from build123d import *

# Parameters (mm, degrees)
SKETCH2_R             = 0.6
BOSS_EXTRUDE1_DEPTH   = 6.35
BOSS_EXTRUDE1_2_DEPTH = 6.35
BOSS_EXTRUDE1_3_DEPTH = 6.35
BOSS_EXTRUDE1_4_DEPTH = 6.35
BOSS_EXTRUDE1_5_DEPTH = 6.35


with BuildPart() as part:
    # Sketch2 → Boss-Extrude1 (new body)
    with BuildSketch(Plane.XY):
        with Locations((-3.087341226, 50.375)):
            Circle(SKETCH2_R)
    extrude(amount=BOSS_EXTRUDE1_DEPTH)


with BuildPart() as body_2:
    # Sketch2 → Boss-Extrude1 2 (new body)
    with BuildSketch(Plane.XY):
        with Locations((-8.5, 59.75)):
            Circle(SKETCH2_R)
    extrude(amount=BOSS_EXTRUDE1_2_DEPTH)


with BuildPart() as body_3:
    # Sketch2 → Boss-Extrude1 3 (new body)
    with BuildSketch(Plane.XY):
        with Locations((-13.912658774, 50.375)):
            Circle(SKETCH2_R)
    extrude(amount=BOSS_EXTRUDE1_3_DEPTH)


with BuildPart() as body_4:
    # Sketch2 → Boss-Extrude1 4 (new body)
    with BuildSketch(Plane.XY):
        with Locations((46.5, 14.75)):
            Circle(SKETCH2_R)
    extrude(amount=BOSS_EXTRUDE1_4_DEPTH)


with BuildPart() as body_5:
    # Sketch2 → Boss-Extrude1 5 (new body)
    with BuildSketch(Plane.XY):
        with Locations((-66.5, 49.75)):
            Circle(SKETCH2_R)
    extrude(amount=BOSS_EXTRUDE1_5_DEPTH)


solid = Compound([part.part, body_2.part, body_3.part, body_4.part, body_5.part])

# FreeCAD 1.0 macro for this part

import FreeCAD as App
import Part
import Sketcher
from FreeCAD import Vector
Q = App.Units.Quantity

doc = App.newDocument("Part")
params = doc.addObject("Spreadsheet::Sheet", "Params")
for row, (alias, value) in enumerate([
    ("sketch1_diameter", "1.2 mm"),
    ("pad1_length", "6.35 mm"),
    ("sketch2_diameter", "1.2 mm"),
    ("pad2_length", "6.35 mm"),
    ("sketch3_diameter", "1.2 mm"),
    ("pad3_length", "6.35 mm"),
    ("sketch4_diameter", "1.2 mm"),
    ("pad4_length", "6.35 mm"),
    ("sketch5_diameter", "1.2 mm"),
    ("pad5_length", "6.35 mm"),
], start=1):
    params.set(f"A{row}", alias)
    params.set(f"B{row}", "=" + value)
    params.setAlias(f"B{row}", alias)

body = doc.addObject("PartDesign::Body", "Body")

sketch1 = body.newObject("Sketcher::SketchObject", "Sketch")
sketch1.AttachmentSupport = (doc.getObject("XY_Plane"), [""])
sketch1.MapMode = "FlatFace"
sketch1.addGeometry(Part.Circle(Vector(-3.1, 50.4, 0), Vector(0, 0, 1), 0.6), False)
sketch1.addConstraint(Sketcher.Constraint("Diameter", 0, Q("1.2 mm")))
sketch1.addConstraint(Sketcher.Constraint("DistanceY", -1, 1, 0, 3, Q("50.375 mm")))
sketch1.addConstraint(Sketcher.Constraint("DistanceX", 0, 3, -1, 1, Q("3.087341 mm")))
sketch1.setExpression("Constraints[0]", "Params.sketch1_diameter")
pad1 = body.newObject("PartDesign::Pad", "Pad")
pad1.Profile = sketch1
pad1.setExpression("Length", "Params.pad1_length")
body2 = doc.addObject("PartDesign::Body", "Body001")

sketch2 = body2.newObject("Sketcher::SketchObject", "Sketch001")
sketch2.AttachmentSupport = (doc.getObject("XY_Plane001"), [""])
sketch2.MapMode = "FlatFace"
sketch2.addGeometry(Part.Circle(Vector(-8.5, 59.8, 0), Vector(0, 0, 1), 0.6), False)
sketch2.addConstraint(Sketcher.Constraint("Diameter", 0, Q("1.2 mm")))
sketch2.addConstraint(Sketcher.Constraint("DistanceX", 0, 3, -1, 1, Q("8.5 mm")))
sketch2.addConstraint(Sketcher.Constraint("DistanceY", -1, 1, 0, 3, Q("59.75 mm")))
sketch2.setExpression("Constraints[0]", "Params.sketch2_diameter")
pad2 = body2.newObject("PartDesign::Pad", "Pad001")
pad2.Profile = sketch2
pad2.setExpression("Length", "Params.pad2_length")
body3 = doc.addObject("PartDesign::Body", "Body002")

sketch3 = body3.newObject("Sketcher::SketchObject", "Sketch002")
sketch3.AttachmentSupport = (doc.getObject("XY_Plane002"), [""])
sketch3.MapMode = "FlatFace"
sketch3.addGeometry(Part.Circle(Vector(-13.9, 50.4, 0), Vector(0, 0, 1), 0.6), False)
sketch3.addConstraint(Sketcher.Constraint("Diameter", 0, Q("1.2 mm")))
sketch3.addConstraint(Sketcher.Constraint("DistanceY", -1, 1, 0, 3, Q("50.375 mm")))
sketch3.addConstraint(Sketcher.Constraint("DistanceX", 0, 3, -1, 1, Q("13.912659 mm")))
sketch3.setExpression("Constraints[0]", "Params.sketch3_diameter")
pad3 = body3.newObject("PartDesign::Pad", "Pad002")
pad3.Profile = sketch3
pad3.setExpression("Length", "Params.pad3_length")
body4 = doc.addObject("PartDesign::Body", "Body003")

sketch4 = body4.newObject("Sketcher::SketchObject", "Sketch003")
sketch4.AttachmentSupport = (doc.getObject("XY_Plane003"), [""])
sketch4.MapMode = "FlatFace"
sketch4.addGeometry(Part.Circle(Vector(46.5, 14.8, 0), Vector(0, 0, 1), 0.6), False)
sketch4.addConstraint(Sketcher.Constraint("Diameter", 0, Q("1.2 mm")))
sketch4.addConstraint(Sketcher.Constraint("DistanceX", -1, 1, 0, 3, Q("46.5 mm")))
sketch4.addConstraint(Sketcher.Constraint("DistanceY", -1, 1, 0, 3, Q("14.75 mm")))
sketch4.setExpression("Constraints[0]", "Params.sketch4_diameter")
pad4 = body4.newObject("PartDesign::Pad", "Pad003")
pad4.Profile = sketch4
pad4.setExpression("Length", "Params.pad4_length")
body5 = doc.addObject("PartDesign::Body", "Body004")

sketch5 = body5.newObject("Sketcher::SketchObject", "Sketch004")
sketch5.AttachmentSupport = (doc.getObject("XY_Plane004"), [""])
sketch5.MapMode = "FlatFace"
sketch5.addGeometry(Part.Circle(Vector(-66.5, 49.8, 0), Vector(0, 0, 1), 0.6), False)
sketch5.addConstraint(Sketcher.Constraint("Diameter", 0, Q("1.2 mm")))
sketch5.addConstraint(Sketcher.Constraint("DistanceX", 0, 3, -1, 1, Q("66.5 mm")))
sketch5.addConstraint(Sketcher.Constraint("DistanceY", -1, 1, 0, 3, Q("49.75 mm")))
sketch5.setExpression("Constraints[0]", "Params.sketch5_diameter")
pad5 = body5.newObject("PartDesign::Pad", "Pad004")
pad5.Profile = sketch5
pad5.setExpression("Length", "Params.pad5_length")

doc.recompute()
